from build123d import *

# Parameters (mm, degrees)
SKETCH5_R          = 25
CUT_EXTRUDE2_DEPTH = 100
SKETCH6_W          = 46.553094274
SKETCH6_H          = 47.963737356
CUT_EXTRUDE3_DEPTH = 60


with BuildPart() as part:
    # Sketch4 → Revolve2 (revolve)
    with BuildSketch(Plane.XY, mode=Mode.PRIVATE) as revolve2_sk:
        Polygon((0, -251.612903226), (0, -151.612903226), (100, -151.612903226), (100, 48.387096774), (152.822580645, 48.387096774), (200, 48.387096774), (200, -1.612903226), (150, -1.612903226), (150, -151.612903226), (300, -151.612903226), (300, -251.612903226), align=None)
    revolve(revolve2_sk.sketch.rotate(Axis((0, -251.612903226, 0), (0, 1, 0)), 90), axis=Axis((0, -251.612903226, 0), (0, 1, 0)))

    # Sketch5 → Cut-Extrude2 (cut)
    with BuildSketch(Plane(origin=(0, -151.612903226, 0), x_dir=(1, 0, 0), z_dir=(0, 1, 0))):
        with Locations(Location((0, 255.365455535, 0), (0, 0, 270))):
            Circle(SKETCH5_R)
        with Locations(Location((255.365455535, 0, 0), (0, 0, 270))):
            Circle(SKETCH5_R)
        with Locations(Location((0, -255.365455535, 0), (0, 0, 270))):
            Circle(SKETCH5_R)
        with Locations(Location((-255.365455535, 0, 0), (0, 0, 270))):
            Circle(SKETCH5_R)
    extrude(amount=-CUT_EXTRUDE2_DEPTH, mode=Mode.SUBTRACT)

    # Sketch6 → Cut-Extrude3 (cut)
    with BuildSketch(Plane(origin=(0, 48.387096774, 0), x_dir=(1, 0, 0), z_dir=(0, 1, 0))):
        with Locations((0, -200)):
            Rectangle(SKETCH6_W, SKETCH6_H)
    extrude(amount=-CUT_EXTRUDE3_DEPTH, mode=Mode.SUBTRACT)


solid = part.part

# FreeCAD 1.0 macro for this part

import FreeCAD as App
import Part
import Sketcher
Q = App.Units.Quantity

doc = App.newDocument("Part")
params = doc.addObject("Spreadsheet::Sheet", "Params")
for row, (alias, value) in enumerate([
    ("sketch1_width", "300 mm"),
    ("sketch1_width2", "150 mm"),
    ("sketch1_width3", "50 mm"),
    ("revolution_angle", "360 deg"),
    ("sketch2_diameter", "50 mm"),
    ("pocket1_length", "100 mm"),
    ("pocket2_length", "60 mm"),
], start=1):
    params.set(f"A{row}", alias)
    params.set(f"B{row}", "=" + value)
    params.setAlias(f"B{row}", alias)

body = doc.addObject("PartDesign::Body", "Body")

sketch1 = body.newObject("Sketcher::SketchObject", "Sketch")
sketch1.AttachmentSupport = (doc.getObject("XY_Plane"), [""])
sketch1.MapMode = "FlatFace"
sketch1.addGeometry([
    Part.LineSegment(App.Vector(0, -152, 0), App.Vector(0, -252, 0)),
    Part.LineSegment(App.Vector(0, -252, 0), App.Vector(300, -252, 0)),
    Part.LineSegment(App.Vector(300, -252, 0), App.Vector(300, -152, 0)),
    Part.LineSegment(App.Vector(300, -152, 0), App.Vector(150, -152, 0)),
    Part.LineSegment(App.Vector(150, -152, 0), App.Vector(150, -2, 0)),
    Part.LineSegment(App.Vector(150, -2, 0), App.Vector(200, -2, 0)),
    Part.LineSegment(App.Vector(200, -2, 0), App.Vector(200, 48, 0)),
    Part.LineSegment(App.Vector(200, 48, 0), App.Vector(100, 48, 0)),
    Part.LineSegment(App.Vector(100, 48, 0), App.Vector(100, -152, 0)),
    Part.LineSegment(App.Vector(100, -152, 0), App.Vector(0, -152, 0)),
], False)
sketch1.addConstraint([
    Sketcher.Constraint("Coincident", 0, 2, 1, 1),
    Sketcher.Constraint("Coincident", 1, 2, 2, 1),
    Sketcher.Constraint("Coincident", 2, 2, 3, 1),
    Sketcher.Constraint("Coincident", 3, 2, 4, 1),
    Sketcher.Constraint("Coincident", 4, 2, 5, 1),
    Sketcher.Constraint("Coincident", 5, 2, 6, 1),
    Sketcher.Constraint("Coincident", 6, 2, 7, 1),
    Sketcher.Constraint("Coincident", 7, 2, 8, 1),
    Sketcher.Constraint("Coincident", 8, 2, 9, 1),
    Sketcher.Constraint("Coincident", 9, 2, 0, 1),
    Sketcher.Constraint("Vertical", 0),
    Sketcher.Constraint("Horizontal", 1),
    Sketcher.Constraint("Vertical", 2),
    Sketcher.Constraint("Horizontal", 3),
    Sketcher.Constraint("Vertical", 4),
    Sketcher.Constraint("Horizontal", 5),
    Sketcher.Constraint("Vertical", 6),
    Sketcher.Constraint("Horizontal", 7),
    Sketcher.Constraint("Vertical", 8),
    Sketcher.Constraint("Horizontal", 9),
    Sketcher.Constraint("PointOnObject", 0, 2, -2),
    Sketcher.Constraint("Horizontal", 3, 2, 8, 2),
    Sketcher.Constraint("Equal", 7, 9),
    Sketcher.Constraint("Equal", 9, 0),
    Sketcher.Constraint("Equal", 3, 4),
    Sketcher.Constraint("Equal", 5, 6),
    Sketcher.Constraint("DistanceX", 1, 1, 1, 2, Q("300 mm")),
    Sketcher.Constraint("DistanceX", 3, 2, 3, 1, Q("150 mm")),
    Sketcher.Constraint("DistanceX", 5, 1, 5, 2, Q("50 mm")),
    Sketcher.Constraint("DistanceY", 0, 2, -1, 1, Q("251.612903 mm")),
])
sketch1.setExpression("Constraints[26]", "Params.sketch1_width")
sketch1.setExpression("Constraints[27]", "Params.sketch1_width2")
sketch1.setExpression("Constraints[28]", "Params.sketch1_width3")
revolution = body.newObject("PartDesign::Revolution", "Revolution")
revolution.Profile = sketch1
revolution.ReferenceAxis = (sketch1, ["V_Axis"])
revolution.setExpression("Angle", "Params.revolution_angle")

sketch2 = body.newObject("Sketcher::SketchObject", "Sketch001")
sketch2.AttachmentSupport = (doc.getObject("XZ_Plane"), [""])
sketch2.MapMode = "FlatFace"
sketch2.AttachmentOffset = App.Placement(App.Vector(0, 0, 151.612903), App.Rotation())
sketch2.addGeometry([
    Part.Circle(App.Vector(0, -255, 0), App.Vector(0, 0, 1), 25),
    Part.Circle(App.Vector(255, 0, 0), App.Vector(0, 0, 1), 25),
    Part.Circle(App.Vector(0, 255, 0), App.Vector(0, 0, 1), 25),
    Part.Circle(App.Vector(-255, 0, 0), App.Vector(0, 0, 1), 25),
], False)
sketch2.addConstraint([
    Sketcher.Constraint("Equal", 0, 1),
    Sketcher.Constraint("Equal", 1, 2),
    Sketcher.Constraint("Equal", 2, 3),
    Sketcher.Constraint("Symmetric", 0, 3, 2, 3, -1, 1),
    Sketcher.Constraint("Symmetric", 1, 3, 3, 3, -1, 1),
    Sketcher.Constraint("PointOnObject", 0, 3, -2),
    Sketcher.Constraint("PointOnObject", 1, 3, -1),
    Sketcher.Constraint("Diameter", 0, Q("50 mm")),
    Sketcher.Constraint("DistanceY", 0, 3, 2, 3, Q("510.730911 mm")),
    Sketcher.Constraint("DistanceX", 3, 3, 1, 3, Q("510.730911 mm")),
])
sketch2.setExpression("Constraints[7]", "Params.sketch2_diameter")
pocket1 = body.newObject("PartDesign::Pocket", "Pocket")
pocket1.Profile = sketch2
pocket1.setExpression("Length", "Params.pocket1_length")
pocket1.Reversed = True

sketch3 = body.newObject("Sketcher::SketchObject", "Sketch002")
sketch3.AttachmentSupport = (doc.getObject("XZ_Plane"), [""])
sketch3.MapMode = "FlatFace"
sketch3.AttachmentOffset = App.Placement(App.Vector(0, 0, -48.387097), App.Rotation())
sketch3.addGeometry([
    Part.LineSegment(App.Vector(-23, 176, 0), App.Vector(-23, 224, 0)),
    Part.LineSegment(App.Vector(-23, 224, 0), App.Vector(23, 224, 0)),
    Part.LineSegment(App.Vector(23, 224, 0), App.Vector(23, 176, 0)),
    Part.LineSegment(App.Vector(23, 176, 0), App.Vector(-23, 176, 0)),
], False)
sketch3.addConstraint([
    Sketcher.Constraint("Coincident", 0, 2, 1, 1),
    Sketcher.Constraint("Coincident", 1, 2, 2, 1),
    Sketcher.Constraint("Coincident", 2, 2, 3, 1),
    Sketcher.Constraint("Coincident", 3, 2, 0, 1),
    Sketcher.Constraint("Vertical", 0),
    Sketcher.Constraint("Horizontal", 1),
    Sketcher.Constraint("Vertical", 2),
    Sketcher.Constraint("Horizontal", 3),
    Sketcher.Constraint("DistanceX", 1, 1, 1, 2, Q("46.553094 mm")),
    Sketcher.Constraint("DistanceY", 0, 1, 0, 2, Q("47.963737 mm")),
    Sketcher.Constraint("DistanceY", -1, 1, 0, 2, Q("223.981869 mm")),
    Sketcher.Constraint("DistanceX", 0, 2, -1, 1, Q("23.276547 mm")),
])
pocket2 = body.newObject("PartDesign::Pocket", "Pocket001")
pocket2.Profile = sketch3
pocket2.setExpression("Length", "Params.pocket2_length")
pocket2.Reversed = True

doc.recompute()
